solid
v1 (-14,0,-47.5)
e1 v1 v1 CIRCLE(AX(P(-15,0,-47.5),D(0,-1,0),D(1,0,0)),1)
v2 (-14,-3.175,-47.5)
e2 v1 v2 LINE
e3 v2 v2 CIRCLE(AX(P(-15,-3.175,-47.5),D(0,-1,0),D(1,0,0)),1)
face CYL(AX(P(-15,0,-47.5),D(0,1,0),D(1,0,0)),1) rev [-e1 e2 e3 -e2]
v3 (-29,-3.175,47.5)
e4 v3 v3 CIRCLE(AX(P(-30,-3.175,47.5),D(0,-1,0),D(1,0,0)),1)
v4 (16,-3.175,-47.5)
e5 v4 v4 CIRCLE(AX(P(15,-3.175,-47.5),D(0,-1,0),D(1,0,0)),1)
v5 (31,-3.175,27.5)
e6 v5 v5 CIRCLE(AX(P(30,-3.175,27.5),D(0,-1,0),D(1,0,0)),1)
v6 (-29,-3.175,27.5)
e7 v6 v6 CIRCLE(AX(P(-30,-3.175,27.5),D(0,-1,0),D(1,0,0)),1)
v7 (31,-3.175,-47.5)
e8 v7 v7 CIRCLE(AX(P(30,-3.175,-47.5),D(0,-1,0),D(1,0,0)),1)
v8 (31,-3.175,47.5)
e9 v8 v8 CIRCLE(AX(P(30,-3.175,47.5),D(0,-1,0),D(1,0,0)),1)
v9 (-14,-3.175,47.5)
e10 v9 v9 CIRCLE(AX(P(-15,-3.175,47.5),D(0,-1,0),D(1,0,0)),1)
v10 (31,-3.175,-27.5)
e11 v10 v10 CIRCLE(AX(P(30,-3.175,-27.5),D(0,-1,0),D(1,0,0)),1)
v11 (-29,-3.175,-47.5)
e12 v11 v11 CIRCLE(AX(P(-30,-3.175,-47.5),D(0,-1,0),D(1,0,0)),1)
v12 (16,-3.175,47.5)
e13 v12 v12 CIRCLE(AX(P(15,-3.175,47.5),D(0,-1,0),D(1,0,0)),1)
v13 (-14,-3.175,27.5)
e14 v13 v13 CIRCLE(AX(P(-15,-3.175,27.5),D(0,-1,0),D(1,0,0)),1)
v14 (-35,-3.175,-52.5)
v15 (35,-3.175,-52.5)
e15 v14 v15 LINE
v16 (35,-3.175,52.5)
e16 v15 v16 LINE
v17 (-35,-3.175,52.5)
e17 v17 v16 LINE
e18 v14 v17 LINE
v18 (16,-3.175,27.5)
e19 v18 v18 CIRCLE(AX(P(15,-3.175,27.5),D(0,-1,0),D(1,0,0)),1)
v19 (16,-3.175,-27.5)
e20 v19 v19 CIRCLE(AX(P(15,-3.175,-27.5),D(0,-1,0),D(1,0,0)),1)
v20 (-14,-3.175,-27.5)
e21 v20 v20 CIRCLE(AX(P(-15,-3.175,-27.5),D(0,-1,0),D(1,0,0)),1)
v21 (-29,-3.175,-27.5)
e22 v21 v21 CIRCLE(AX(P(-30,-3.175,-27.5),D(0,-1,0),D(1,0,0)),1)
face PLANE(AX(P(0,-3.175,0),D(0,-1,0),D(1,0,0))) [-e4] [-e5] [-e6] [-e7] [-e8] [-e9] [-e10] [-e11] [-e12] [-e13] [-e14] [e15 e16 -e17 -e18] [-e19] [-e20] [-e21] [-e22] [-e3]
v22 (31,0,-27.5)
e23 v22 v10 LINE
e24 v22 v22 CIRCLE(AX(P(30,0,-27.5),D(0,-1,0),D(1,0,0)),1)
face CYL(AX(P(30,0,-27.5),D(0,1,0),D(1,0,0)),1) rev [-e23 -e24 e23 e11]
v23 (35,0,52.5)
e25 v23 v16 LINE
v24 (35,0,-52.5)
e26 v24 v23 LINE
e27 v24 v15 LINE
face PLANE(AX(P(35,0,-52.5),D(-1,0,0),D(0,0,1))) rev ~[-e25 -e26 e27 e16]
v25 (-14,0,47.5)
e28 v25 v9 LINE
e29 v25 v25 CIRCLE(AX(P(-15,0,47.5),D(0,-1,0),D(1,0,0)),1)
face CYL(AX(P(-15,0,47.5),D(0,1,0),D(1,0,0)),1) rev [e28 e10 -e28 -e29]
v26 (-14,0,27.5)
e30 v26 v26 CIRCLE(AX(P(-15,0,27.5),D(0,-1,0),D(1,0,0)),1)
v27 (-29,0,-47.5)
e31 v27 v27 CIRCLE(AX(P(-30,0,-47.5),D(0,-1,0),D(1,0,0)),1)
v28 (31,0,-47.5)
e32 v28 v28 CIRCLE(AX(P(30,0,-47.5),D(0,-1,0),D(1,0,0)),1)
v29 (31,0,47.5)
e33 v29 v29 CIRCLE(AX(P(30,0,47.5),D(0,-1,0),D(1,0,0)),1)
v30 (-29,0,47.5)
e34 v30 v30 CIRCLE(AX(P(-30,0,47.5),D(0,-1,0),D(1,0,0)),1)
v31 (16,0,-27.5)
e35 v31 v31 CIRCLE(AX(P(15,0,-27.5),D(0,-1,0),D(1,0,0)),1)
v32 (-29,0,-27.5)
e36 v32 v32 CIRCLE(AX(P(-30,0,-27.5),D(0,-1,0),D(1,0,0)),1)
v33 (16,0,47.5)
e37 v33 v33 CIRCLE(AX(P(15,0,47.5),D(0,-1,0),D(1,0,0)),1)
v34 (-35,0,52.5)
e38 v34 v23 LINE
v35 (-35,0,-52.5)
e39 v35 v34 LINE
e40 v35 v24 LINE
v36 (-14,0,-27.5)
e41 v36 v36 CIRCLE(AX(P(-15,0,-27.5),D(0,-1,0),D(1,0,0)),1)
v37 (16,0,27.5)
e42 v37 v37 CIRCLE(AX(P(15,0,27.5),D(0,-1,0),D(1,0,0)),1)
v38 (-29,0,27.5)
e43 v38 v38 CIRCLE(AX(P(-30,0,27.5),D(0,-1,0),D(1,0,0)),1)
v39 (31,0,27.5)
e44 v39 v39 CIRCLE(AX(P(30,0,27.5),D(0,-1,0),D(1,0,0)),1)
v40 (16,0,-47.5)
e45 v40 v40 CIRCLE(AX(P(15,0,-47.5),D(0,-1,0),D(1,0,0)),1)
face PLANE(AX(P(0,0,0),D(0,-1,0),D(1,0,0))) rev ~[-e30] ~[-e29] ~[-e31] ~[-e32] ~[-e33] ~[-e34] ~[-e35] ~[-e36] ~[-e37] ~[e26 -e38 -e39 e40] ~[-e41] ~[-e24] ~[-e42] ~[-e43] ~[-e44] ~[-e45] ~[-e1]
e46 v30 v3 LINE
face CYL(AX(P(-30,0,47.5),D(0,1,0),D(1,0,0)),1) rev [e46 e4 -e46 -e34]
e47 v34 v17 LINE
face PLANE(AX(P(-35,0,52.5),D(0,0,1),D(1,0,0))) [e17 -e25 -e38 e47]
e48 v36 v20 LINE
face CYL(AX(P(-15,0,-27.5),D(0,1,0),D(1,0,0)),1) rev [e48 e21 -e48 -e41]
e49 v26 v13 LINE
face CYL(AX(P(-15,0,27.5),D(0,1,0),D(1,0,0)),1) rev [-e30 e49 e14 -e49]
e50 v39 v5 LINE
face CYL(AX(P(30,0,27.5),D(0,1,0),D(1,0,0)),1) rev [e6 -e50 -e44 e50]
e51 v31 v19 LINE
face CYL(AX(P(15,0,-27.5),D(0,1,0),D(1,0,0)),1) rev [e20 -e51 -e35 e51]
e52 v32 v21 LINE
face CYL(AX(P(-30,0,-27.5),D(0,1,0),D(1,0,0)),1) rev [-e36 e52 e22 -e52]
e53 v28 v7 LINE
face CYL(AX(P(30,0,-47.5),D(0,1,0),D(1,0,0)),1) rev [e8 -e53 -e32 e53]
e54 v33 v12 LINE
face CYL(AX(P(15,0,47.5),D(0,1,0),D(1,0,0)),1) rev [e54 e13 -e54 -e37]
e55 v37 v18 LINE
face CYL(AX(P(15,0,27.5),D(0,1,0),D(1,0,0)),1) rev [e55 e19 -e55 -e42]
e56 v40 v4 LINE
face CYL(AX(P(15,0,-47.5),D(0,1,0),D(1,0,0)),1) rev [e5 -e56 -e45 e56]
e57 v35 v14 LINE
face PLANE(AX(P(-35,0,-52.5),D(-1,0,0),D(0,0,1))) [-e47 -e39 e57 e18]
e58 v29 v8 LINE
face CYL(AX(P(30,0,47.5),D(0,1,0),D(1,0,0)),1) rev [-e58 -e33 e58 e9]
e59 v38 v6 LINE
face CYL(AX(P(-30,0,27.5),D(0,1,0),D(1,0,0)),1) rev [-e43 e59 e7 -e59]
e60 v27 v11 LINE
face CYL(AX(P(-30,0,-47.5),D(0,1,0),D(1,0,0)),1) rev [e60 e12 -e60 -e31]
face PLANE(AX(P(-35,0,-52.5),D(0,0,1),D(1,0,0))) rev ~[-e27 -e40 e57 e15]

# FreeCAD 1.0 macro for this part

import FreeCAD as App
import Part
import Sketcher

V = App.Vector


def add_polygon(sketch, points):
    """Adds a closed chain of lines whose ends are joined by coincident constraints."""
    first, n = sketch.GeometryCount, len(points)
    for a, b in zip(points, points[1:] + points[:1]):
        sketch.addGeometry(Part.LineSegment(App.Vector(*a, 0), App.Vector(*b, 0)), False)
    for i in range(n):
        sketch.addConstraint(Sketcher.Constraint("Coincident", first + i, 2, first + (i + 1) % n, 1))

doc = App.newDocument("Part")
body = doc.addObject("PartDesign::Body", "Body")

sketch1 = doc.addObject("Sketcher::SketchObject", "Sketch")
body.addObject(sketch1)
sketch1.AttachmentSupport = (doc.XZ_Plane, [""])
sketch1.MapMode = "FlatFace"
add_polygon(sketch1, [(-35, 52.5), (-35, -52.5), (35, -52.5), (35, 52.5)])
sketch1.addGeometry(Part.Circle(V(-30, -47.5, 0), V(0, 0, 1), 1), False)
sketch1.addGeometry(Part.Circle(V(-30, -27.5, 0), V(0, 0, 1), 1), False)
sketch1.addGeometry(Part.Circle(V(-15, -47.5, 0), V(0, 0, 1), 1), False)
sketch1.addGeometry(Part.Circle(V(-15, -27.5, 0), V(0, 0, 1), 1), False)
sketch1.addGeometry(Part.Circle(V(15, -47.5, 0), V(0, 0, 1), 1), False)
sketch1.addGeometry(Part.Circle(V(15, -27.5, 0), V(0, 0, 1), 1), False)
sketch1.addGeometry(Part.Circle(V(30, -47.5, 0), V(0, 0, 1), 1), False)
sketch1.addGeometry(Part.Circle(V(30, -27.5, 0), V(0, 0, 1), 1), False)
sketch1.addGeometry(Part.Circle(V(-30, 27.5, 0), V(0, 0, 1), 1), False)
sketch1.addGeometry(Part.Circle(V(-30, 47.5, 0), V(0, 0, 1), 1), False)
sketch1.addGeometry(Part.Circle(V(-15, 27.5, 0), V(0, 0, 1), 1), False)
sketch1.addGeometry(Part.Circle(V(-15, 47.5, 0), V(0, 0, 1), 1), False)
sketch1.addGeometry(Part.Circle(V(15, 27.5, 0), V(0, 0, 1), 1), False)
sketch1.addGeometry(Part.Circle(V(15, 47.5, 0), V(0, 0, 1), 1), False)
sketch1.addGeometry(Part.Circle(V(30, 27.5, 0), V(0, 0, 1), 1), False)
sketch1.addGeometry(Part.Circle(V(30, 47.5, 0), V(0, 0, 1), 1), False)
sketch1.addConstraint([
    Sketcher.Constraint("Vertical", 0),
    Sketcher.Constraint("Horizontal", 1),
    Sketcher.Constraint("Vertical", 2),
    Sketcher.Constraint("Horizontal", 3),
    Sketcher.Constraint("Equal", 4, 5),
    Sketcher.Constraint("Equal", 5, 6),
    Sketcher.Constraint("Equal", 6, 7),
    Sketcher.Constraint("Equal", 7, 8),
    Sketcher.Constraint("Equal", 8, 9),
    Sketcher.Constraint("Equal", 9, 10),
    Sketcher.Constraint("Equal", 10, 11),
    Sketcher.Constraint("Equal", 11, 12),
    Sketcher.Constraint("Equal", 12, 13),
    Sketcher.Constraint("Equal", 13, 14),
    Sketcher.Constraint("Equal", 14, 15),
    Sketcher.Constraint("Equal", 15, 16),
    Sketcher.Constraint("Equal", 16, 17),
    Sketcher.Constraint("Equal", 17, 18),
    Sketcher.Constraint("Equal", 18, 19),
    Sketcher.Constraint("Symmetric", 11, 3, 12, 3, -1, 1),
    Sketcher.Constraint("Symmetric", 10, 3, 13, 3, -1, 1),
    Sketcher.Constraint("Symmetric", 9, 3, 14, 3, -1, 1),
    Sketcher.Constraint("Symmetric", 8, 3, 15, 3, -1, 1),
    Sketcher.Constraint("Symmetric", 7, 3, 16, 3, -1, 1),
    Sketcher.Constraint("Symmetric", 6, 3, 17, 3, -1, 1),
    Sketcher.Constraint("Symmetric", 5, 3, 18, 3, -1, 1),
    Sketcher.Constraint("Symmetric", 4, 3, 19, 3, -1, 1),
    Sketcher.Constraint("Symmetric", 0, 2, 2, 2, -1, 1),
    Sketcher.Constraint("Symmetric", 6, 3, 8, 3, -2),
    Sketcher.Constraint("Symmetric", 7, 3, 9, 3, -2),
    Sketcher.Constraint("Symmetric", 4, 3, 10, 3, -2),
    Sketcher.Constraint("Symmetric", 5, 3, 11, 3, -2),
    Sketcher.Constraint("Horizontal", 4, 3, 6, 3),
    Sketcher.Constraint("Horizontal", 5, 3, 7, 3),
    Sketcher.Constraint("Vertical", 4, 3, 5, 3),
    Sketcher.Constraint("Vertical", 6, 3, 7, 3),
    Sketcher.Constraint("Diameter", 4, 2.0),
    Sketcher.Constraint("DistanceX", 1, 1, 1, 2, 70.0),
    Sketcher.Constraint("DistanceY", 0, 2, 0, 1, 105.0),
    Sketcher.Constraint("DistanceX", 4, 3, -1, 1, 30.0),
    Sketcher.Constraint("DistanceX", 6, 3, -1, 1, 15.0),
    Sketcher.Constraint("DistanceY", 4, 3, 5, 3, 20.0),
    Sketcher.Constraint("DistanceY", 5, 3, 12, 3, 55.0),
])
pad1 = doc.addObject("PartDesign::Pad", "Pad")
body.addObject(pad1)
pad1.Profile = sketch1
pad1.Length = 3.175

doc.recompute()
